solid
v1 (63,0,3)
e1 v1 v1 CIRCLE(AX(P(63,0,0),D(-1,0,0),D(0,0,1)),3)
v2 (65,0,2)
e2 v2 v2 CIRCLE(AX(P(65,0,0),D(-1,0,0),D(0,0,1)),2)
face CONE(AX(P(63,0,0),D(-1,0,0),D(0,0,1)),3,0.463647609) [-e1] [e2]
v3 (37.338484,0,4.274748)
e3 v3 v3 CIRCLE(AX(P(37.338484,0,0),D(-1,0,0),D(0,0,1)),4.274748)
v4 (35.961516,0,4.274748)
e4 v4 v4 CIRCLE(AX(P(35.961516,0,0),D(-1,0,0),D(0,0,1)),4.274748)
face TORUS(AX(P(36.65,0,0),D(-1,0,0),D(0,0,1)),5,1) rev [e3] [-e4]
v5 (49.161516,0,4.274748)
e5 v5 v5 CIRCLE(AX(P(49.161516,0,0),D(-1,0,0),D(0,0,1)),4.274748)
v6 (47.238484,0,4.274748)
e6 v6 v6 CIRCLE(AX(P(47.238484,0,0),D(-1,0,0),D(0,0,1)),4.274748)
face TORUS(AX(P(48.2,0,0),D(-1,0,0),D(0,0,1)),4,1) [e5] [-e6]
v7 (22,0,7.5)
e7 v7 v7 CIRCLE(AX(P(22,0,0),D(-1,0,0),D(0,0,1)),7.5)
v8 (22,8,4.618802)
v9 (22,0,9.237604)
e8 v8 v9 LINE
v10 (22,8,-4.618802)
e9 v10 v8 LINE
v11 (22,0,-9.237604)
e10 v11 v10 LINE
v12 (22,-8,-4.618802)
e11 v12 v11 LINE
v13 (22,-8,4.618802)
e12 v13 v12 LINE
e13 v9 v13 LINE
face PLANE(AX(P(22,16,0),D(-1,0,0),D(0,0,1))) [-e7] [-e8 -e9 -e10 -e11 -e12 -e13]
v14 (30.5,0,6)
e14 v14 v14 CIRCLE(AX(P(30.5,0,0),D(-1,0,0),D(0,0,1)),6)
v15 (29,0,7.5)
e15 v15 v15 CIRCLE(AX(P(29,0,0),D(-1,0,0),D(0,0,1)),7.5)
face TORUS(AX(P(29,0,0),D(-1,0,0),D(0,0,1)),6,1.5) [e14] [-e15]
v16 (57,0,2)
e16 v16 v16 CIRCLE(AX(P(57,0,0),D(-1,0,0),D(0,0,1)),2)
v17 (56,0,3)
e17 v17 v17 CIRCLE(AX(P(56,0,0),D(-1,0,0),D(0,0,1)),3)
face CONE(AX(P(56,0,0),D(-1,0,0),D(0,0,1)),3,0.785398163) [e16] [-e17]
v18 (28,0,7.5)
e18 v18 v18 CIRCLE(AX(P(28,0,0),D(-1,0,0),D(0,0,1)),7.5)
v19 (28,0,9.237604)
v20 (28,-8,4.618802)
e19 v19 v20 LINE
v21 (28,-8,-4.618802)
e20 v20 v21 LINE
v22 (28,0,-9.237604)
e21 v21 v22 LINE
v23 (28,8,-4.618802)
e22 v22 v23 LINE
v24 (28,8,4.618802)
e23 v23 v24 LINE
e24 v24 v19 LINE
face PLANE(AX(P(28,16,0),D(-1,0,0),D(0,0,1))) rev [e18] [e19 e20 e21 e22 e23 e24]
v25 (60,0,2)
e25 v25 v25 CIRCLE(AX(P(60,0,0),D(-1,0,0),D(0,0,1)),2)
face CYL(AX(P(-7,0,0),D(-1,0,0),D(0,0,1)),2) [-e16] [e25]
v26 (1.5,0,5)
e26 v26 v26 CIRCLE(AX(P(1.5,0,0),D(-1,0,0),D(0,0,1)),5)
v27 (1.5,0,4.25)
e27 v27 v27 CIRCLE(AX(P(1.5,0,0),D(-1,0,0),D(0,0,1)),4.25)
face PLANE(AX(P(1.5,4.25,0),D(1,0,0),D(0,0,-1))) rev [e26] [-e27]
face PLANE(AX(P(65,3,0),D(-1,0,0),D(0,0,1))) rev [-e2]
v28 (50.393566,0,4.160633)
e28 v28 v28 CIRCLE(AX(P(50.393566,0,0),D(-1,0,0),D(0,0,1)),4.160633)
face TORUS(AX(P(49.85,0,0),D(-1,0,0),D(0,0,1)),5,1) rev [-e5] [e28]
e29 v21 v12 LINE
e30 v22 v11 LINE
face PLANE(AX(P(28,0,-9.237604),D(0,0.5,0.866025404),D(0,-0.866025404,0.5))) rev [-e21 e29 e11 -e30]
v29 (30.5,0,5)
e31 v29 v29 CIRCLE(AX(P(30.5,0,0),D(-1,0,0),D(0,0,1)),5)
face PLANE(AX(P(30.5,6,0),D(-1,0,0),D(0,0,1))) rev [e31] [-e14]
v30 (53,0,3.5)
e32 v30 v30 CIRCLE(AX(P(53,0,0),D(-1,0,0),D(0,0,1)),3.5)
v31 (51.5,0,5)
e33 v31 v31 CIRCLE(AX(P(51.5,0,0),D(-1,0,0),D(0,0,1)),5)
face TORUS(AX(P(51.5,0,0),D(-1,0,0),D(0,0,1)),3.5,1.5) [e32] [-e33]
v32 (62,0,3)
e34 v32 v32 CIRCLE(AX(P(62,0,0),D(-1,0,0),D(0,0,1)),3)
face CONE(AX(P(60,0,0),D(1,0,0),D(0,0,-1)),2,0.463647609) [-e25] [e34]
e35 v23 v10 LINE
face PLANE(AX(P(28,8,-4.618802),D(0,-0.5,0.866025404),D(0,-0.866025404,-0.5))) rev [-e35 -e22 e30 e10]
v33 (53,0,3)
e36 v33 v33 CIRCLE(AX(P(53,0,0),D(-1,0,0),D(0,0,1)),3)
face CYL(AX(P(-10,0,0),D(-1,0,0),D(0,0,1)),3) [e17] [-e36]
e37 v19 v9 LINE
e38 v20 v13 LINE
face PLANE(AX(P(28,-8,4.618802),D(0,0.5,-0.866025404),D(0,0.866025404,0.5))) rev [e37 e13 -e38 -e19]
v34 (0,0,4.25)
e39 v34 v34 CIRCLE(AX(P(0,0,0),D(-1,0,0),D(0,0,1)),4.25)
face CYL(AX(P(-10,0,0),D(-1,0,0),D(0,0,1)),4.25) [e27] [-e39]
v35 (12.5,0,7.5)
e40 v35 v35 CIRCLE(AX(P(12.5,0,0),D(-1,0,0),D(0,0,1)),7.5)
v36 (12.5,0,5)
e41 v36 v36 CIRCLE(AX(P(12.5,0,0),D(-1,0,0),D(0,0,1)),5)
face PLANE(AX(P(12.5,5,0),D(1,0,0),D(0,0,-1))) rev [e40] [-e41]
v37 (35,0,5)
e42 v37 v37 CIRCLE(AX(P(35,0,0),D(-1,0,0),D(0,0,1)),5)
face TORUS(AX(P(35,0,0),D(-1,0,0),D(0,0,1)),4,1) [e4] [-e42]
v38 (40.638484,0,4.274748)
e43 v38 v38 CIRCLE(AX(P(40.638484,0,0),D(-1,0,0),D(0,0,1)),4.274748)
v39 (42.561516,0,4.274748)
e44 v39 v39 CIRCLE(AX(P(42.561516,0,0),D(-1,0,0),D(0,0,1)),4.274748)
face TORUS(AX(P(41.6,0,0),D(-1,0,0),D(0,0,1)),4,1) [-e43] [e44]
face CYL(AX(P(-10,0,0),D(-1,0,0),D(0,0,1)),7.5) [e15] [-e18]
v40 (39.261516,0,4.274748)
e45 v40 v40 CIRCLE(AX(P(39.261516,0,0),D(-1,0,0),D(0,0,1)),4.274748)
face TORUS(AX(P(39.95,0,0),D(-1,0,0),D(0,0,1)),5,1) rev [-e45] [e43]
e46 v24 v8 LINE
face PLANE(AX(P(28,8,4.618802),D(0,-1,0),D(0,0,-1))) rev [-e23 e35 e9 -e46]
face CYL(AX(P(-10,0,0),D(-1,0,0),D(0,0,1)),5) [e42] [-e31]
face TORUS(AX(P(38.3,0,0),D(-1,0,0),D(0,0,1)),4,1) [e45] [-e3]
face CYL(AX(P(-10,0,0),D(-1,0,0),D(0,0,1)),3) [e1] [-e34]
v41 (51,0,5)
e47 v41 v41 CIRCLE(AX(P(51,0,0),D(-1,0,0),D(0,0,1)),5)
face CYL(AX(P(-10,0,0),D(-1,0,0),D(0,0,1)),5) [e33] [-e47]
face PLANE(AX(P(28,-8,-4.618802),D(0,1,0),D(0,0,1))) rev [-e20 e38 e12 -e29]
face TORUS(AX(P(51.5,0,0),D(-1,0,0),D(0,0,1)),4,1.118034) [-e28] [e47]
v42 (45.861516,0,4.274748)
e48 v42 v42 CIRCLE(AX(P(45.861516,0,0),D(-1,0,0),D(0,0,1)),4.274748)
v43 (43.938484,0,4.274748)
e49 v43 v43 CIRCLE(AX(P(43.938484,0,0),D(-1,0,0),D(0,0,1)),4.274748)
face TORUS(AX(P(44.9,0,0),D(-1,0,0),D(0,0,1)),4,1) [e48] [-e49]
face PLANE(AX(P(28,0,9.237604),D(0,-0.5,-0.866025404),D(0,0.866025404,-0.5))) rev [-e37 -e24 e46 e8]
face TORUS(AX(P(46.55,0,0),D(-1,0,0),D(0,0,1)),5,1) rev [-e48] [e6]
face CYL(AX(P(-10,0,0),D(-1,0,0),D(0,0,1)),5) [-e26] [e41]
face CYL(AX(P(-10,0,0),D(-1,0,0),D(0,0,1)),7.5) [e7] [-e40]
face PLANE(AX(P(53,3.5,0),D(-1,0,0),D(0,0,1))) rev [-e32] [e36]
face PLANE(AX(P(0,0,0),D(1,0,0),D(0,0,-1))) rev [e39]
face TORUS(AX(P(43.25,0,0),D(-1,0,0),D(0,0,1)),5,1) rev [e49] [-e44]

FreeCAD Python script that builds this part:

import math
import FreeCAD as App
import Part
import Sketcher

V = App.Vector
Q = App.Units.Quantity


def add_polygon(sketch, points):
    """Adds a closed chain of lines whose ends are joined by coincident constraints."""
    first, n = sketch.GeometryCount, len(points)
    for a, b in zip(points, points[1:] + points[:1]):
        sketch.addGeometry(Part.LineSegment(App.Vector(*a, 0), App.Vector(*b, 0)), False)
    for i in range(n):
        sketch.addConstraint(Sketcher.Constraint("Coincident", first + i, 2, first + (i + 1) % n, 1))

doc = App.newDocument("Part")
body = doc.addObject("PartDesign::Body", "Body")

sketch1 = body.newObject("Sketcher::SketchObject", "Sketch")
sketch1.AttachmentSupport = (doc.getObject("XY_Plane"), [""])
sketch1.MapMode = "FlatFace"
sketch1.addGeometry([
    Part.LineSegment(V(0, 4.25, 0), V(0, 0, 0)),
    Part.LineSegment(V(0, 0, 0), V(65, 0, 0)),
    Part.LineSegment(V(65, 0, 0), V(65, 3, 0)),
    Part.LineSegment(V(65, 3, 0), V(53, 3, 0)),
    Part.LineSegment(V(53, 3, 0), V(53, 3.5, 0)),
    Part.ArcOfCircle(Part.Circle(V(51.5, 3.5, 0), V(0, 0, 1), 1.5), math.radians(0), math.radians(90)),
    Part.LineSegment(V(51.5, 5, 0), V(30.5, 5, 0)),
    Part.LineSegment(V(30.5, 5, 0), V(30.5, 6, 0)),
    Part.ArcOfCircle(Part.Circle(V(29, 6, 0), V(0, 0, 1), 1.5), math.radians(0), math.radians(90)),
    Part.LineSegment(V(29, 7.5, 0), V(12.5, 7.5, 0)),
    Part.LineSegment(V(12.5, 7.5, 0), V(12.5, 5, 0)),
    Part.LineSegment(V(12.5, 5, 0), V(1.5, 5, 0)),
    Part.LineSegment(V(1.5, 5, 0), V(1.5, 4.25, 0)),
    Part.LineSegment(V(1.5, 4.25, 0), V(0, 4.25, 0)),
], False)
sketch1.addConstraint([
    Sketcher.Constraint("Coincident", 0, 2, 1, 1),
    Sketcher.Constraint("Coincident", 1, 2, 2, 1),
    Sketcher.Constraint("Coincident", 2, 2, 3, 1),
    Sketcher.Constraint("Coincident", 3, 2, 4, 1),
    Sketcher.Constraint("Tangent", 4, 2, 5, 1),
    Sketcher.Constraint("Tangent", 5, 2, 6, 1),
    Sketcher.Constraint("Coincident", 6, 2, 7, 1),
    Sketcher.Constraint("Tangent", 7, 2, 8, 1),
    Sketcher.Constraint("Tangent", 8, 2, 9, 1),
    Sketcher.Constraint("Coincident", 9, 2, 10, 1),
    Sketcher.Constraint("Coincident", 10, 2, 11, 1),
    Sketcher.Constraint("Coincident", 11, 2, 12, 1),
    Sketcher.Constraint("Coincident", 12, 2, 13, 1),
    Sketcher.Constraint("Coincident", 13, 2, 0, 1),
    Sketcher.Constraint("Vertical", 0),
    Sketcher.Constraint("Horizontal", 1),
    Sketcher.Constraint("Vertical", 2),
    Sketcher.Constraint("Horizontal", 3),
    Sketcher.Constraint("Vertical", 4),
    Sketcher.Constraint("Horizontal", 6),
    Sketcher.Constraint("Vertical", 7),
    Sketcher.Constraint("Horizontal", 9),
    Sketcher.Constraint("Vertical", 10),
    Sketcher.Constraint("Horizontal", 11),
    Sketcher.Constraint("Vertical", 12),
    Sketcher.Constraint("Horizontal", 13),
    Sketcher.Constraint("Coincident", 0, 2, -1, 1),
    Sketcher.Constraint("Equal", 5, 8),
    Sketcher.Constraint("Horizontal", 6, 2, 10, 2),
    Sketcher.Constraint("Radius", 5, 1.5),
    Sketcher.Constraint("DistanceX", 1, 1, 1, 2, 65.0),
    Sketcher.Constraint("DistanceX", 3, 2, 3, 1, 12.0),
    Sketcher.Constraint("DistanceX", 6, 2, 6, 1, 21.0),
    Sketcher.Constraint("DistanceX", 11, 2, 11, 1, 11.0),
    Sketcher.Constraint("DistanceY", 2, 1, 2, 2, 3.0),
    Sketcher.Constraint("DistanceY", 7, 1, 7, 2, 1.0),
    Sketcher.Constraint("DistanceX", 9, 2, 9, 1, 16.5),
    Sketcher.Constraint("DistanceY", 4, 1, 4, 2, 0.5),
    Sketcher.Constraint("DistanceY", 0, 2, 0, 1, 4.25),
])
revolution = body.newObject("PartDesign::Revolution", "Revolution")
revolution.Profile = sketch1
revolution.ReferenceAxis = (sketch1, ["H_Axis"])
revolution.Angle = 360

sketch2 = body.newObject("Sketcher::SketchObject", "Sketch001")
sketch2.AttachmentSupport = (doc.getObject("XY_Plane"), [""])
sketch2.MapMode = "FlatFace"
add_polygon(sketch2, [(60, 2), (62, 3), (63, 3), (65, 2), (65, 4), (57, 4), (56, 3), (57, 2)])
sketch2.addGeometry(Part.LineSegment(V(34, 5, 0), V(35, 5, 0)), False)
sketch2.addGeometry(Part.ArcOfCircle(Part.Circle(V(35, 4, 0), V(0, 0, 1), 1), math.radians(15.947015), math.radians(90)), False)
sketch2.addGeometry(Part.ArcOfCircle(Part.Circle(V(36.65, 5, 0), V(0, 0, 1), 1), math.radians(-133.510209), math.radians(-46.489791)), False)
sketch2.addGeometry(Part.ArcOfCircle(Part.Circle(V(38.3, 4, 0), V(0, 0, 1), 1), math.radians(15.947015), math.radians(164.052985)), False)
sketch2.addGeometry(Part.ArcOfCircle(Part.Circle(V(39.95, 5, 0), V(0, 0, 1), 1), math.radians(-133.510209), math.radians(-46.489791)), False)
sketch2.addGeometry(Part.ArcOfCircle(Part.Circle(V(41.6, 4, 0), V(0, 0, 1), 1), math.radians(15.947015), math.radians(164.052985)), False)
sketch2.addGeometry(Part.ArcOfCircle(Part.Circle(V(43.25, 5, 0), V(0, 0, 1), 1), math.radians(-133.510209), math.radians(-46.489791)), False)
sketch2.addGeometry(Part.ArcOfCircle(Part.Circle(V(44.9, 4, 0), V(0, 0, 1), 1), math.radians(15.947015), math.radians(164.052985)), False)
sketch2.addGeometry(Part.ArcOfCircle(Part.Circle(V(46.55, 5, 0), V(0, 0, 1), 1), math.radians(-133.510209), math.radians(-46.489791)), False)
sketch2.addGeometry(Part.ArcOfCircle(Part.Circle(V(48.2, 4, 0), V(0, 0, 1), 1), math.radians(15.947015), math.radians(164.052985)), False)
sketch2.addGeometry(Part.ArcOfCircle(Part.Circle(V(49.85, 5, 0), V(0, 0, 1), 1), math.radians(-133.510209), math.radians(-57.073299)), False)
sketch2.addGeometry(Part.ArcOfCircle(Part.Circle(V(51.5, 4, 0), V(0, 0, 1), 1.118034), math.radians(116.565051), math.radians(171.73945)), False)
sketch2.addGeometry(Part.LineSegment(V(51, 5, 0), V(51, 6, 0)), False)
sketch2.addGeometry(Part.LineSegment(V(51, 6, 0), V(34, 6, 0)), False)
sketch2.addGeometry(Part.LineSegment(V(34, 6, 0), V(34, 5, 0)), False)
sketch2.addConstraint([
    Sketcher.Constraint("Tangent", 8, 2, 9, 2),
    Sketcher.Constraint("Coincident", 9, 1, 10, 1),
    Sketcher.Constraint("Coincident", 10, 2, 11, 2),
    Sketcher.Constraint("Coincident", 11, 1, 12, 1),
    Sketcher.Constraint("Coincident", 12, 2, 13, 2),
    Sketcher.Constraint("Coincident", 13, 1, 14, 1),
    Sketcher.Constraint("Coincident", 14, 2, 15, 2),
    Sketcher.Constraint("Coincident", 15, 1, 16, 1),
    Sketcher.Constraint("Coincident", 16, 2, 17, 2),
    Sketcher.Constraint("Coincident", 17, 1, 18, 1),
    Sketcher.Constraint("Coincident", 18, 2, 19, 2),
    Sketcher.Constraint("Coincident", 19, 1, 20, 1),
    Sketcher.Constraint("Coincident", 20, 2, 21, 1),
    Sketcher.Constraint("Coincident", 21, 2, 22, 1),
    Sketcher.Constraint("Coincident", 22, 2, 8, 1),
    Sketcher.Constraint("Horizontal", 1),
    Sketcher.Constraint("Vertical", 3),
    Sketcher.Constraint("Horizontal", 4),
    Sketcher.Constraint("Horizontal", 7),
    Sketcher.Constraint("Horizontal", 8),
    Sketcher.Constraint("Vertical", 20),
    Sketcher.Constraint("Horizontal", 21),
    Sketcher.Constraint("Vertical", 22),
    Sketcher.Constraint("Equal", 9, 10),
    Sketcher.Constraint("Equal", 10, 11),
    Sketcher.Constraint("Equal", 11, 12),
    Sketcher.Constraint("Equal", 12, 13),
    Sketcher.Constraint("Equal", 13, 14),
    Sketcher.Constraint("Equal", 14, 15),
    Sketcher.Constraint("Equal", 15, 16),
    Sketcher.Constraint("Equal", 16, 17),
    Sketcher.Constraint("Equal", 17, 18),
    Sketcher.Constraint("Perpendicular", 5, 6),
    Sketcher.Constraint("Horizontal", 9, 3, 11, 3),
    Sketcher.Constraint("Horizontal", 10, 3, 12, 3),
    Sketcher.Constraint("Horizontal", 11, 3, 13, 3),
    Sketcher.Constraint("Horizontal", 12, 3, 14, 3),
    Sketcher.Constraint("Horizontal", 13, 3, 15, 3),
    Sketcher.Constraint("Horizontal", 14, 3, 16, 3),
    Sketcher.Constraint("Horizontal", 15, 3, 17, 3),
    Sketcher.Constraint("Horizontal", 16, 3, 18, 3),
    Sketcher.Constraint("Horizontal", 17, 3, 19, 3),
    Sketcher.Constraint("Horizontal", 19, 3, 3, 2),
    Sketcher.Constraint("Horizontal", 1, 2, 5, 2),
    Sketcher.Constraint("Horizontal", 2, 2, 6, 2),
    Sketcher.Constraint("Horizontal", 18, 3, 8, 2),
    Sketcher.Constraint("Horizontal", 9, 1, 10, 2),
    Sketcher.Constraint("Horizontal", 10, 2, 11, 1),
    Sketcher.Constraint("Horizontal", 11, 1, 12, 2),
    Sketcher.Constraint("Horizontal", 12, 2, 13, 1),
    Sketcher.Constraint("Horizontal", 13, 1, 14, 2),
    Sketcher.Constraint("Horizontal", 14, 2, 15, 1),
    Sketcher.Constraint("Horizontal", 15, 1, 16, 2),
    Sketcher.Constraint("Horizontal", 16, 2, 17, 1),
    Sketcher.Constraint("Horizontal", 8, 2, 19, 1),
    Sketcher.Constraint("Vertical", 4, 2, 6, 2),
    Sketcher.Constraint("Equal", 1, 8),
    Sketcher.Constraint("Equal", 8, 20),
    Sketcher.Constraint("Equal", 0, 2),
    Sketcher.Constraint("Equal", 5, 6),
    Sketcher.Constraint("Radius", 9, 1.0),
    Sketcher.Constraint("DistanceX", 1, 1, 1, 2, 1.0),
    Sketcher.Constraint("DistanceX", 4, 2, 4, 1, 8.0),
    Sketcher.Constraint("DistanceX", 7, 1, 7, 2, 3.0),
    Sketcher.Constraint("DistanceX", 21, 2, 21, 1, 17.0),
    Sketcher.Constraint("DistanceY", 3, 1, 3, 2, 2.0),
    Sketcher.Constraint("DistanceX", -1, 1, 9, 3, 35.0),
    Sketcher.Constraint("DistanceY", -1, 1, 9, 3, 4.0),
    Sketcher.Constraint("DistanceX", -1, 1, 0, 2, 62.0),
    Sketcher.Constraint("DistanceX", -1, 1, 11, 3, 38.3),
    Sketcher.Constraint("DistanceX", -1, 1, 19, 3, 51.5),
])
groove = body.newObject("PartDesign::Groove", "Groove")
groove.Profile = sketch2
groove.ReferenceAxis = (sketch2, ["H_Axis"])
groove.Angle = 360

sketch3 = body.newObject("Sketcher::SketchObject", "Sketch002")
sketch3.AttachmentSupport = (doc.getObject("YZ_Plane"), [""])
sketch3.MapMode = "FlatFace"
sketch3.AttachmentOffset = App.Placement(V(0, 0, 22), App.Rotation())
add_polygon(sketch3, [(8, -4.618802), (8, 4.618802), (0, 9.237604), (-8, 4.618802), (-8, -4.618802), (0, -9.237604)])
sketch3.addConstraint([
    Sketcher.Constraint("Vertical", 0),
    Sketcher.Constraint("Vertical", 3),
    Sketcher.Constraint("Symmetric", 0, 2, 3, 2, -1, 1),
    Sketcher.Constraint("Symmetric", 1, 2, 4, 2, -1, 1),
    Sketcher.Constraint("PointOnObject", 1, 2, -2),
    Sketcher.Constraint("Parallel", 2, 5),
    Sketcher.Constraint("Horizontal", 0, 2, 2, 2),
    Sketcher.Constraint("Angle", 1, Q("150 deg")),
    Sketcher.Constraint("DistanceX", -1, 1, 0, 2, 8.0),
    Sketcher.Constraint("DistanceY", 0, 1, 0, 2, 9.237604),
])
pad1 = body.newObject("PartDesign::Pad", "Pad")
pad1.Profile = sketch3
pad1.Length = 6

doc.recompute()
